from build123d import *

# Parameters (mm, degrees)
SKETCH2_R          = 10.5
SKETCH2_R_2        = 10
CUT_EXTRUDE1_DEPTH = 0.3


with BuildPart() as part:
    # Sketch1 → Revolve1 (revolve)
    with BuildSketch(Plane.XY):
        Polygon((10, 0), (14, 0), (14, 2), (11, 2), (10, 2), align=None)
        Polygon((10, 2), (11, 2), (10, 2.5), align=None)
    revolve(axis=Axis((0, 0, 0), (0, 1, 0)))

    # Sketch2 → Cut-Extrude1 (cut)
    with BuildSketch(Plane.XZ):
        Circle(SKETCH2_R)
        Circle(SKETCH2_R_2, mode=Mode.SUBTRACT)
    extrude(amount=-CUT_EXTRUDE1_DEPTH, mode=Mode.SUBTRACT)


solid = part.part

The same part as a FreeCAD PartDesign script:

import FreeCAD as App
import Part
import Sketcher

V = App.Vector
Q = App.Units.Quantity

doc = App.newDocument("Part")
body = doc.addObject("PartDesign::Body", "Body")

# Sketch on XY plane
sketch1 = doc.addObject("Sketcher::SketchObject", "Sketch")
body.addObject(sketch1)
sketch1.AttachmentSupport = (doc.XY_Plane, [""])
sketch1.MapMode = "FlatFace"
sketch1.addGeometry(Part.LineSegment(V(10, 0, 0), V(14, 0, 0)), False)
sketch1.addGeometry(Part.LineSegment(V(14, 0, 0), V(14, 2, 0)), False)
sketch1.addGeometry(Part.LineSegment(V(14, 2, 0), V(11, 2, 0)), False)
sketch1.addGeometry(Part.LineSegment(V(11, 2, 0), V(10, 2.5, 0)), False)
sketch1.addGeometry(Part.LineSegment(V(10, 2.5, 0), V(10, 0, 0)), False)
sketch1.addConstraint(Sketcher.Constraint("Coincident", 0, 2, 1, 1))
sketch1.addConstraint(Sketcher.Constraint("Coincident", 1, 2, 2, 1))
sketch1.addConstraint(Sketcher.Constraint("Coincident", 2, 2, 3, 1))
sketch1.addConstraint(Sketcher.Constraint("Coincident", 3, 2, 4, 1))
sketch1.addConstraint(Sketcher.Constraint("Coincident", 4, 2, 0, 1))
sketch1.addConstraint(Sketcher.Constraint("Horizontal", 0))
sketch1.addConstraint(Sketcher.Constraint("Vertical", 1))
sketch1.addConstraint(Sketcher.Constraint("Horizontal", 2))
sketch1.addConstraint(Sketcher.Constraint("Vertical", 4))
sketch1.addConstraint(Sketcher.Constraint("PointOnObject", 0, 2, -1))
sketch1.addConstraint(Sketcher.Constraint("DistanceX", 0, 1, 0, 2, Q("4 mm")))
sketch1.addConstraint(Sketcher.Constraint("DistanceX", 2, 2, 2, 1, Q("3 mm")))
sketch1.addConstraint(Sketcher.Constraint("DistanceY", 1, 1, 1, 2, Q("2 mm")))
sketch1.addConstraint(Sketcher.Constraint("DistanceY", 4, 2, 4, 1, Q("2.5 mm")))
sketch1.addConstraint(Sketcher.Constraint("DistanceX", -1, 1, 0, 2, Q("14 mm")))
revolution = doc.addObject("PartDesign::Revolution", "Revolution")
body.addObject(revolution)
revolution.Profile = sketch1
revolution.ReferenceAxis = (sketch1, ["V_Axis"])
revolution.Angle = 360

# Sketch on XZ plane
sketch2 = doc.addObject("Sketcher::SketchObject", "Sketch001")
body.addObject(sketch2)
sketch2.AttachmentSupport = (doc.XZ_Plane, [""])
sketch2.MapMode = "FlatFace"
sketch2.addGeometry(Part.Circle(V(0, 0, 0), V(0, 0, 1), 10), False)
sketch2.addGeometry(Part.Circle(V(0, 0, 0), V(0, 0, 1), 10), False)
sketch2.addConstraint(Sketcher.Constraint("Coincident", 0, 3, -1, 1))
sketch2.addConstraint(Sketcher.Constraint("Coincident", 1, 3, -1, 1))
sketch2.addConstraint(Sketcher.Constraint("Diameter", 0, Q("21 mm")))
sketch2.addConstraint(Sketcher.Constraint("Diameter", 1, Q("20 mm")))
pocket1 = doc.addObject("PartDesign::Pocket", "Pocket")
body.addObject(pocket1)
pocket1.Profile = sketch2
pocket1.Length = 0.3

doc.recompute()
